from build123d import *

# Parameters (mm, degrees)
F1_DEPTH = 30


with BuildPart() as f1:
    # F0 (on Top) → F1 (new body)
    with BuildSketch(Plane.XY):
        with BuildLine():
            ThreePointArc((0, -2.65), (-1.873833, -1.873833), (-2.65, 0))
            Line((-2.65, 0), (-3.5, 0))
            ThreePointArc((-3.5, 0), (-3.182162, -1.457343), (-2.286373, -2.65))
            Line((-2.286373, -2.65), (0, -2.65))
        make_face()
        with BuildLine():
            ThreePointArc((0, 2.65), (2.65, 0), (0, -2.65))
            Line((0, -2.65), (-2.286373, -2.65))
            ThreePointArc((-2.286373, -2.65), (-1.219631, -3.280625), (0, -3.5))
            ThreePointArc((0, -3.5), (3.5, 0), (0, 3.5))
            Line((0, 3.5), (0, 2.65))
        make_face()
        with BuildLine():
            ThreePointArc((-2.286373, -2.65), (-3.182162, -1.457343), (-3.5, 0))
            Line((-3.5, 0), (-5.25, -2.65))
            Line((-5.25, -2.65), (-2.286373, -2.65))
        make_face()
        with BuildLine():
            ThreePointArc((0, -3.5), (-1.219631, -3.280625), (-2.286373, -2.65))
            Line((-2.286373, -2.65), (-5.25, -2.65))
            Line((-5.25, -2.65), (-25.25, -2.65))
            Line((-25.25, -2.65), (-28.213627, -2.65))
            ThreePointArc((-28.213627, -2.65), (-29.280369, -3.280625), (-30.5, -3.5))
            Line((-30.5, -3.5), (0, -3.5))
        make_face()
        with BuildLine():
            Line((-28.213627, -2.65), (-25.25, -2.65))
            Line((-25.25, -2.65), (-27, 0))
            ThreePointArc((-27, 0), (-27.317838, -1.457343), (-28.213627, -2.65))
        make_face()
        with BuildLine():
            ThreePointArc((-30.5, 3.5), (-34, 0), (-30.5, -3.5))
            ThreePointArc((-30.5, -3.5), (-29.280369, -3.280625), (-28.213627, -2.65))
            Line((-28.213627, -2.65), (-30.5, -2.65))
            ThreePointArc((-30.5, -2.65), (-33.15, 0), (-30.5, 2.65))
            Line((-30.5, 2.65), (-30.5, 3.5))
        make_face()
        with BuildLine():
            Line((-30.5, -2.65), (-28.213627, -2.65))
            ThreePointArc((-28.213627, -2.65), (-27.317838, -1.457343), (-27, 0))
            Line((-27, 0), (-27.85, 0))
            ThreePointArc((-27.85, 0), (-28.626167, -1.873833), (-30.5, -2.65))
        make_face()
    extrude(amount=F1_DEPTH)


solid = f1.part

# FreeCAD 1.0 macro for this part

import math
import FreeCAD as App
import Part
import Sketcher
from FreeCAD import Vector

doc = App.newDocument("Part")
body = doc.addObject("PartDesign::Body", "Body")

# Sketch on XY plane
sketch1 = body.newObject("Sketcher::SketchObject", "Sketch")
sketch1.AttachmentSupport = (doc.getObject("XY_Plane"), [""])
sketch1.MapMode = "FlatFace"
sketch1.addGeometry(Part.ArcOfCircle(Part.Circle(Vector(0, 0, 0), Vector(0, 0, 1), 2.6), math.radians(180), math.radians(270)), False)
sketch1.addGeometry(Part.LineSegment(Vector(-2.6, 0, 0), Vector(-3.5, 0, 0)), False)
sketch1.addGeometry(Part.LineSegment(Vector(-3.5, 0, 0), Vector(-5.2, -2.6, 0)), False)
sketch1.addGeometry(Part.LineSegment(Vector(-5.2, -2.6, 0), Vector(-25.2, -2.6, 0)), False)
sketch1.addGeometry(Part.LineSegment(Vector(-25.2, -2.6, 0), Vector(-27, 0, 0)), False)
sketch1.addGeometry(Part.LineSegment(Vector(-27, 0, 0), Vector(-27.9, 0, 0)), False)
sketch1.addGeometry(Part.ArcOfCircle(Part.Circle(Vector(-30.5, 0, 0), Vector(0, 0, 1), 2.6), math.radians(-90), math.radians(0)), False)
sketch1.addGeometry(Part.ArcOfCircle(Part.Circle(Vector(-30.5, 0, 0), Vector(0, 0, 1), 2.6), math.radians(90), math.radians(270)), False)
sketch1.addGeometry(Part.LineSegment(Vector(-30.5, 2.6, 0), Vector(-30.5, 3.5, 0)), False)
sketch1.addGeometry(Part.ArcOfCircle(Part.Circle(Vector(-30.5, 0, 0), Vector(0, 0, 1), 3.5), math.radians(90), math.radians(270)), False)
sketch1.addGeometry(Part.LineSegment(Vector(-30.5, -3.5, 0), Vector(0, -3.5, 0)), False)
sketch1.addGeometry(Part.ArcOfCircle(Part.Circle(Vector(0, 0, 0), Vector(0, 0, 1), 3.5), math.radians(-90), math.radians(90)), False)
sketch1.addGeometry(Part.LineSegment(Vector(0, 3.5, 0), Vector(0, 2.6, 0)), False)
sketch1.addGeometry(Part.ArcOfCircle(Part.Circle(Vector(0, 0, 0), Vector(0, 0, 1), 2.6), math.radians(-90), math.radians(90)), False)
sketch1.addConstraint(Sketcher.Constraint("Coincident", 0, 1, 1, 1))
sketch1.addConstraint(Sketcher.Constraint("Coincident", 1, 2, 2, 1))
sketch1.addConstraint(Sketcher.Constraint("Coincident", 2, 2, 3, 1))
sketch1.addConstraint(Sketcher.Constraint("Coincident", 3, 2, 4, 1))
sketch1.addConstraint(Sketcher.Constraint("Coincident", 4, 2, 5, 1))
sketch1.addConstraint(Sketcher.Constraint("Coincident", 5, 2, 6, 2))
sketch1.addConstraint(Sketcher.Constraint("Tangent", 6, 1, 7, 2))
sketch1.addConstraint(Sketcher.Constraint("Coincident", 7, 1, 8, 1))
sketch1.addConstraint(Sketcher.Constraint("Coincident", 8, 2, 9, 1))
sketch1.addConstraint(Sketcher.Constraint("Tangent", 9, 2, 10, 1))
sketch1.addConstraint(Sketcher.Constraint("Tangent", 10, 2, 11, 1))
sketch1.addConstraint(Sketcher.Constraint("Coincident", 11, 2, 12, 1))
sketch1.addConstraint(Sketcher.Constraint("Coincident", 12, 2, 13, 2))
sketch1.addConstraint(Sketcher.Constraint("Tangent", 13, 1, 0, 2))
sketch1.addConstraint(Sketcher.Constraint("Horizontal", 1))
sketch1.addConstraint(Sketcher.Constraint("Horizontal", 3))
sketch1.addConstraint(Sketcher.Constraint("Horizontal", 5))
sketch1.addConstraint(Sketcher.Constraint("Vertical", 8))
sketch1.addConstraint(Sketcher.Constraint("Horizontal", 10))
sketch1.addConstraint(Sketcher.Constraint("Vertical", 12))
sketch1.addConstraint(Sketcher.Constraint("Coincident", 0, 3, -1, 1))
sketch1.addConstraint(Sketcher.Constraint("Coincident", 11, 3, -1, 1))
sketch1.addConstraint(Sketcher.Constraint("Coincident", 9, 3, 6, 3))
sketch1.addConstraint(Sketcher.Constraint("Equal", 0, 6))
sketch1.addConstraint(Sketcher.Constraint("Equal", 6, 7))
sketch1.addConstraint(Sketcher.Constraint("Equal", 9, 11))
sketch1.addConstraint(Sketcher.Constraint("Equal", 7, 13))
sketch1.addConstraint(Sketcher.Constraint("PointOnObject", 0, 1, -1))
sketch1.addConstraint(Sketcher.Constraint("PointOnObject", 4, 2, -1))
sketch1.addConstraint(Sketcher.Constraint("PointOnObject", 11, 2, -2))
sketch1.addConstraint(Sketcher.Constraint("PointOnObject", 13, 1, -2))
sketch1.addConstraint(Sketcher.Constraint("Horizontal", 3, 2, 6, 1))
sketch1.addConstraint(Sketcher.Constraint("Vertical", 9, 3, 6, 1))
sketch1.addConstraint(Sketcher.Constraint("Vertical", 6, 1, 7, 1))
sketch1.addConstraint(Sketcher.Constraint("Equal", 1, 5))
sketch1.addConstraint(Sketcher.Constraint("Equal", 5, 8))
sketch1.addConstraint(Sketcher.Constraint("Equal", 2, 4))
sketch1.addConstraint(Sketcher.Constraint("Radius", 9, 3.5))
sketch1.addConstraint(Sketcher.Constraint("DistanceX", 3, 2, 3, 1, 20.0))
sketch1.addConstraint(Sketcher.Constraint("Radius", 0, 2.65))
sketch1.addConstraint(Sketcher.Constraint("DistanceX", 10, 1, 10, 2, 30.5))
pad1 = body.newObject("PartDesign::Pad", "Pad")
pad1.Profile = sketch1
pad1.Length = 30

doc.recompute()
